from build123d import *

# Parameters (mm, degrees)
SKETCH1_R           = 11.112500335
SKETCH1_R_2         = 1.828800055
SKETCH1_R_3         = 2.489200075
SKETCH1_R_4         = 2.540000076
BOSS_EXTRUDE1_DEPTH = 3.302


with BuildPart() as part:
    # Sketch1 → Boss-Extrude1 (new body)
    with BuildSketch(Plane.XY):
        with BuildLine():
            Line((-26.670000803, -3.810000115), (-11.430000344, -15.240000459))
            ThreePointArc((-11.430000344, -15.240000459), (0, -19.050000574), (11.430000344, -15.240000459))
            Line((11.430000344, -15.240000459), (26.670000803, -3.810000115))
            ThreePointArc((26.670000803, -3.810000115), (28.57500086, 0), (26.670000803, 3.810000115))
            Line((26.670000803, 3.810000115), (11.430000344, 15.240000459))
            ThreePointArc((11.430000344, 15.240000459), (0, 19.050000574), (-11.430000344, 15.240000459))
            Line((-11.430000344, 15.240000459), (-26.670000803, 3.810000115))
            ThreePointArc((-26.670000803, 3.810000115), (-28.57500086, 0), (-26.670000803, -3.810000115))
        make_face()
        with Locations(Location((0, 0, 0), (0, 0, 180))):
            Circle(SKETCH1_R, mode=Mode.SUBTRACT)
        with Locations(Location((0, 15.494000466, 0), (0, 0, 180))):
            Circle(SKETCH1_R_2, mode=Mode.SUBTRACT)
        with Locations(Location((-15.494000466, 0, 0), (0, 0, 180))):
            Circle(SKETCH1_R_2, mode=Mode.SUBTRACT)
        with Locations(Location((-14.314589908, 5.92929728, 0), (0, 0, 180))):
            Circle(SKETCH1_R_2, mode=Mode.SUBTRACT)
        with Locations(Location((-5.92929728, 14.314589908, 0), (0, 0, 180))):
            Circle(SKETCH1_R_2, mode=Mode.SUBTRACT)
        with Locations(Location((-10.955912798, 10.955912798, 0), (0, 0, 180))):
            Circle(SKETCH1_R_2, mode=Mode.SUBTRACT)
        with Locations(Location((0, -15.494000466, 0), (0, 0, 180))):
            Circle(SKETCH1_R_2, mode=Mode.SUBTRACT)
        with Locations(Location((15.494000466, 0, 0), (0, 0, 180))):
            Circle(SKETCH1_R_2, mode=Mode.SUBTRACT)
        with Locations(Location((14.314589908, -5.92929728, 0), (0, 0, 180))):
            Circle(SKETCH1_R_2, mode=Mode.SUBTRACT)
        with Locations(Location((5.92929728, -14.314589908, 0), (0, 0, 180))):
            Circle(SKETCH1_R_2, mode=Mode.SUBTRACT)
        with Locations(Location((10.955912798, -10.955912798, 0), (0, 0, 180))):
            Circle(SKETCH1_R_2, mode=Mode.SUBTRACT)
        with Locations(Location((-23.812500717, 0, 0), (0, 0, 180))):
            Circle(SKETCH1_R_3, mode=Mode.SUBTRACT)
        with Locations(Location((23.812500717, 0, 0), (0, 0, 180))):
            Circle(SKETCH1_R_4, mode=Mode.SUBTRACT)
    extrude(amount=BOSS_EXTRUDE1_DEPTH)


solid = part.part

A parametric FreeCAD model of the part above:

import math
import FreeCAD as App
import Part
import Sketcher

V = App.Vector
Q = App.Units.Quantity

doc = App.newDocument("Part")
body = doc.addObject("PartDesign::Body", "Body")

# Sketch on XY plane
sketch1 = doc.addObject("Sketcher::SketchObject", "Sketch")
body.addObject(sketch1)
sketch1.AttachmentSupport = (doc.XY_Plane, [""])
sketch1.MapMode = "FlatFace"
sketch1.addGeometry([
    Part.LineSegment(V(-26.670001, -3.81, 0), V(-11.43, -15.24, 0)),  # 0
    Part.ArcOfCircle(Part.Circle(V(0, 0, 0), V(0, 0, 1), 19.050001), math.radians(-126.869898), math.radians(-53.130102)),  # 1
    Part.LineSegment(V(11.43, -15.24, 0), V(26.670001, -3.81, 0)),  # 2
    Part.ArcOfCircle(Part.Circle(V(23.812501, 0, 0), V(0, 0, 1), 4.7625), math.radians(-53.130102), math.radians(53.130102)),  # 3
    Part.LineSegment(V(26.670001, 3.81, 0), V(11.43, 15.24, 0)),  # 4
    Part.ArcOfCircle(Part.Circle(V(0, 0, 0), V(0, 0, 1), 19.050001), math.radians(53.130102), math.radians(126.869898)),  # 5
    Part.LineSegment(V(-11.43, 15.24, 0), V(-26.670001, 3.81, 0)),  # 6
    Part.ArcOfCircle(Part.Circle(V(-23.812501, 0, 0), V(0, 0, 1), 4.7625), math.radians(126.869898), math.radians(233.130102)),  # 7
    Part.Circle(V(0, -15.494, 0), V(0, 0, 1), 1.8288),  # 8
    Part.Circle(V(5.929297, -14.31459, 0), V(0, 0, 1), 1.8288),  # 9
    Part.Circle(V(10.955913, -10.955913, 0), V(0, 0, 1), 1.8288),  # 10
    Part.Circle(V(14.31459, -5.929297, 0), V(0, 0, 1), 1.8288),  # 11
    Part.Circle(V(-23.812501, 0, 0), V(0, 0, 1), 2.4892),  # 12
    Part.Circle(V(-15.494, 0, 0), V(0, 0, 1), 1.8288),  # 13
    Part.Circle(V(-14.31459, 5.929297, 0), V(0, 0, 1), 1.8288),  # 14
    Part.Circle(V(0, 0, 0), V(0, 0, 1), 11.1125),  # 15
    Part.Circle(V(-10.955913, 10.955913, 0), V(0, 0, 1), 1.8288),  # 16
    Part.Circle(V(-5.929297, 14.31459, 0), V(0, 0, 1), 1.8288),  # 17
    Part.Circle(V(0, 15.494, 0), V(0, 0, 1), 1.8288),  # 18
    Part.Circle(V(15.494, 0, 0), V(0, 0, 1), 1.8288),  # 19
    Part.Circle(V(23.812501, 0, 0), V(0, 0, 1), 2.54),  # 20
], False)
sketch1.addConstraint([
    Sketcher.Constraint("Tangent", 0, 2, 1, 1),
    Sketcher.Constraint("Tangent", 1, 2, 2, 1),
    Sketcher.Constraint("Tangent", 2, 2, 3, 1),
    Sketcher.Constraint("Tangent", 3, 2, 4, 1),
    Sketcher.Constraint("Tangent", 4, 2, 5, 1),
    Sketcher.Constraint("Tangent", 5, 2, 6, 1),
    Sketcher.Constraint("Tangent", 6, 2, 7, 1),
    Sketcher.Constraint("Tangent", 7, 2, 0, 1),
    Sketcher.Constraint("Coincident", 1, 3, -1, 1),
    Sketcher.Constraint("Coincident", 5, 3, -1, 1),
    Sketcher.Constraint("Coincident", 15, 3, -1, 1),
    Sketcher.Constraint("Coincident", 12, 3, 7, 3),
    Sketcher.Constraint("Coincident", 20, 3, 3, 3),
    Sketcher.Constraint("Equal", 1, 5),
    Sketcher.Constraint("Equal", 3, 7),
    Sketcher.Constraint("Equal", 8, 9),
    Sketcher.Constraint("Equal", 9, 10),
    Sketcher.Constraint("Equal", 10, 11),
    Sketcher.Constraint("Equal", 11, 13),
    Sketcher.Constraint("Equal", 13, 14),
    Sketcher.Constraint("Equal", 14, 16),
    Sketcher.Constraint("Equal", 16, 17),
    Sketcher.Constraint("Equal", 17, 18),
    Sketcher.Constraint("Equal", 18, 19),
    Sketcher.Constraint("Symmetric", 3, 3, 7, 3, -1, 1),
    Sketcher.Constraint("Symmetric", 11, 3, 14, 3, -1, 1),
    Sketcher.Constraint("Symmetric", 10, 3, 16, 3, -1, 1),
    Sketcher.Constraint("Symmetric", 9, 3, 17, 3, -1, 1),
    Sketcher.Constraint("Symmetric", 8, 3, 18, 3, -1, 1),
    Sketcher.Constraint("Symmetric", 13, 3, 19, 3, -1, 1),
    Sketcher.Constraint("PointOnObject", 3, 3, -1),
    Sketcher.Constraint("PointOnObject", 8, 3, -2),
    Sketcher.Constraint("PointOnObject", 13, 3, -1),
    Sketcher.Constraint("Diameter", 20, Q("0.2 in")),
    Sketcher.Constraint("Radius", 1, Q("0.75 in")),
    Sketcher.Constraint("Diameter", 8, Q("0.144 in")),
    Sketcher.Constraint("Diameter", 12, Q("0.196 in")),
    Sketcher.Constraint("Diameter", 15, Q("0.875 in")),
    Sketcher.Constraint("Radius", 3, Q("0.1875 in")),
    Sketcher.Constraint("DistanceY", 0, 2, -1, 1, Q("0.6 in")),
    Sketcher.Constraint("DistanceY", 8, 3, -1, 1, Q("0.61 in")),
    Sketcher.Constraint("DistanceX", 13, 3, -1, 1, Q("0.61 in")),
    Sketcher.Constraint("DistanceY", 9, 3, -1, 1, 14.31459),
    Sketcher.Constraint("DistanceX", -1, 1, 11, 3, 14.31459),
    Sketcher.Constraint("DistanceX", 10, 3, 2, 2, 15.714088),
    Sketcher.Constraint("DistanceX", -1, 1, 9, 3, 5.929297),
    Sketcher.Constraint("DistanceY", 10, 3, -1, 1, 10.955913),
    Sketcher.Constraint("DistanceY", 11, 3, -1, 1, 5.929297),
])
pad1 = doc.addObject("PartDesign::Pad", "Pad")
body.addObject(pad1)
pad1.Profile = sketch1
pad1.Length = Q("0.13 in")

doc.recompute()
